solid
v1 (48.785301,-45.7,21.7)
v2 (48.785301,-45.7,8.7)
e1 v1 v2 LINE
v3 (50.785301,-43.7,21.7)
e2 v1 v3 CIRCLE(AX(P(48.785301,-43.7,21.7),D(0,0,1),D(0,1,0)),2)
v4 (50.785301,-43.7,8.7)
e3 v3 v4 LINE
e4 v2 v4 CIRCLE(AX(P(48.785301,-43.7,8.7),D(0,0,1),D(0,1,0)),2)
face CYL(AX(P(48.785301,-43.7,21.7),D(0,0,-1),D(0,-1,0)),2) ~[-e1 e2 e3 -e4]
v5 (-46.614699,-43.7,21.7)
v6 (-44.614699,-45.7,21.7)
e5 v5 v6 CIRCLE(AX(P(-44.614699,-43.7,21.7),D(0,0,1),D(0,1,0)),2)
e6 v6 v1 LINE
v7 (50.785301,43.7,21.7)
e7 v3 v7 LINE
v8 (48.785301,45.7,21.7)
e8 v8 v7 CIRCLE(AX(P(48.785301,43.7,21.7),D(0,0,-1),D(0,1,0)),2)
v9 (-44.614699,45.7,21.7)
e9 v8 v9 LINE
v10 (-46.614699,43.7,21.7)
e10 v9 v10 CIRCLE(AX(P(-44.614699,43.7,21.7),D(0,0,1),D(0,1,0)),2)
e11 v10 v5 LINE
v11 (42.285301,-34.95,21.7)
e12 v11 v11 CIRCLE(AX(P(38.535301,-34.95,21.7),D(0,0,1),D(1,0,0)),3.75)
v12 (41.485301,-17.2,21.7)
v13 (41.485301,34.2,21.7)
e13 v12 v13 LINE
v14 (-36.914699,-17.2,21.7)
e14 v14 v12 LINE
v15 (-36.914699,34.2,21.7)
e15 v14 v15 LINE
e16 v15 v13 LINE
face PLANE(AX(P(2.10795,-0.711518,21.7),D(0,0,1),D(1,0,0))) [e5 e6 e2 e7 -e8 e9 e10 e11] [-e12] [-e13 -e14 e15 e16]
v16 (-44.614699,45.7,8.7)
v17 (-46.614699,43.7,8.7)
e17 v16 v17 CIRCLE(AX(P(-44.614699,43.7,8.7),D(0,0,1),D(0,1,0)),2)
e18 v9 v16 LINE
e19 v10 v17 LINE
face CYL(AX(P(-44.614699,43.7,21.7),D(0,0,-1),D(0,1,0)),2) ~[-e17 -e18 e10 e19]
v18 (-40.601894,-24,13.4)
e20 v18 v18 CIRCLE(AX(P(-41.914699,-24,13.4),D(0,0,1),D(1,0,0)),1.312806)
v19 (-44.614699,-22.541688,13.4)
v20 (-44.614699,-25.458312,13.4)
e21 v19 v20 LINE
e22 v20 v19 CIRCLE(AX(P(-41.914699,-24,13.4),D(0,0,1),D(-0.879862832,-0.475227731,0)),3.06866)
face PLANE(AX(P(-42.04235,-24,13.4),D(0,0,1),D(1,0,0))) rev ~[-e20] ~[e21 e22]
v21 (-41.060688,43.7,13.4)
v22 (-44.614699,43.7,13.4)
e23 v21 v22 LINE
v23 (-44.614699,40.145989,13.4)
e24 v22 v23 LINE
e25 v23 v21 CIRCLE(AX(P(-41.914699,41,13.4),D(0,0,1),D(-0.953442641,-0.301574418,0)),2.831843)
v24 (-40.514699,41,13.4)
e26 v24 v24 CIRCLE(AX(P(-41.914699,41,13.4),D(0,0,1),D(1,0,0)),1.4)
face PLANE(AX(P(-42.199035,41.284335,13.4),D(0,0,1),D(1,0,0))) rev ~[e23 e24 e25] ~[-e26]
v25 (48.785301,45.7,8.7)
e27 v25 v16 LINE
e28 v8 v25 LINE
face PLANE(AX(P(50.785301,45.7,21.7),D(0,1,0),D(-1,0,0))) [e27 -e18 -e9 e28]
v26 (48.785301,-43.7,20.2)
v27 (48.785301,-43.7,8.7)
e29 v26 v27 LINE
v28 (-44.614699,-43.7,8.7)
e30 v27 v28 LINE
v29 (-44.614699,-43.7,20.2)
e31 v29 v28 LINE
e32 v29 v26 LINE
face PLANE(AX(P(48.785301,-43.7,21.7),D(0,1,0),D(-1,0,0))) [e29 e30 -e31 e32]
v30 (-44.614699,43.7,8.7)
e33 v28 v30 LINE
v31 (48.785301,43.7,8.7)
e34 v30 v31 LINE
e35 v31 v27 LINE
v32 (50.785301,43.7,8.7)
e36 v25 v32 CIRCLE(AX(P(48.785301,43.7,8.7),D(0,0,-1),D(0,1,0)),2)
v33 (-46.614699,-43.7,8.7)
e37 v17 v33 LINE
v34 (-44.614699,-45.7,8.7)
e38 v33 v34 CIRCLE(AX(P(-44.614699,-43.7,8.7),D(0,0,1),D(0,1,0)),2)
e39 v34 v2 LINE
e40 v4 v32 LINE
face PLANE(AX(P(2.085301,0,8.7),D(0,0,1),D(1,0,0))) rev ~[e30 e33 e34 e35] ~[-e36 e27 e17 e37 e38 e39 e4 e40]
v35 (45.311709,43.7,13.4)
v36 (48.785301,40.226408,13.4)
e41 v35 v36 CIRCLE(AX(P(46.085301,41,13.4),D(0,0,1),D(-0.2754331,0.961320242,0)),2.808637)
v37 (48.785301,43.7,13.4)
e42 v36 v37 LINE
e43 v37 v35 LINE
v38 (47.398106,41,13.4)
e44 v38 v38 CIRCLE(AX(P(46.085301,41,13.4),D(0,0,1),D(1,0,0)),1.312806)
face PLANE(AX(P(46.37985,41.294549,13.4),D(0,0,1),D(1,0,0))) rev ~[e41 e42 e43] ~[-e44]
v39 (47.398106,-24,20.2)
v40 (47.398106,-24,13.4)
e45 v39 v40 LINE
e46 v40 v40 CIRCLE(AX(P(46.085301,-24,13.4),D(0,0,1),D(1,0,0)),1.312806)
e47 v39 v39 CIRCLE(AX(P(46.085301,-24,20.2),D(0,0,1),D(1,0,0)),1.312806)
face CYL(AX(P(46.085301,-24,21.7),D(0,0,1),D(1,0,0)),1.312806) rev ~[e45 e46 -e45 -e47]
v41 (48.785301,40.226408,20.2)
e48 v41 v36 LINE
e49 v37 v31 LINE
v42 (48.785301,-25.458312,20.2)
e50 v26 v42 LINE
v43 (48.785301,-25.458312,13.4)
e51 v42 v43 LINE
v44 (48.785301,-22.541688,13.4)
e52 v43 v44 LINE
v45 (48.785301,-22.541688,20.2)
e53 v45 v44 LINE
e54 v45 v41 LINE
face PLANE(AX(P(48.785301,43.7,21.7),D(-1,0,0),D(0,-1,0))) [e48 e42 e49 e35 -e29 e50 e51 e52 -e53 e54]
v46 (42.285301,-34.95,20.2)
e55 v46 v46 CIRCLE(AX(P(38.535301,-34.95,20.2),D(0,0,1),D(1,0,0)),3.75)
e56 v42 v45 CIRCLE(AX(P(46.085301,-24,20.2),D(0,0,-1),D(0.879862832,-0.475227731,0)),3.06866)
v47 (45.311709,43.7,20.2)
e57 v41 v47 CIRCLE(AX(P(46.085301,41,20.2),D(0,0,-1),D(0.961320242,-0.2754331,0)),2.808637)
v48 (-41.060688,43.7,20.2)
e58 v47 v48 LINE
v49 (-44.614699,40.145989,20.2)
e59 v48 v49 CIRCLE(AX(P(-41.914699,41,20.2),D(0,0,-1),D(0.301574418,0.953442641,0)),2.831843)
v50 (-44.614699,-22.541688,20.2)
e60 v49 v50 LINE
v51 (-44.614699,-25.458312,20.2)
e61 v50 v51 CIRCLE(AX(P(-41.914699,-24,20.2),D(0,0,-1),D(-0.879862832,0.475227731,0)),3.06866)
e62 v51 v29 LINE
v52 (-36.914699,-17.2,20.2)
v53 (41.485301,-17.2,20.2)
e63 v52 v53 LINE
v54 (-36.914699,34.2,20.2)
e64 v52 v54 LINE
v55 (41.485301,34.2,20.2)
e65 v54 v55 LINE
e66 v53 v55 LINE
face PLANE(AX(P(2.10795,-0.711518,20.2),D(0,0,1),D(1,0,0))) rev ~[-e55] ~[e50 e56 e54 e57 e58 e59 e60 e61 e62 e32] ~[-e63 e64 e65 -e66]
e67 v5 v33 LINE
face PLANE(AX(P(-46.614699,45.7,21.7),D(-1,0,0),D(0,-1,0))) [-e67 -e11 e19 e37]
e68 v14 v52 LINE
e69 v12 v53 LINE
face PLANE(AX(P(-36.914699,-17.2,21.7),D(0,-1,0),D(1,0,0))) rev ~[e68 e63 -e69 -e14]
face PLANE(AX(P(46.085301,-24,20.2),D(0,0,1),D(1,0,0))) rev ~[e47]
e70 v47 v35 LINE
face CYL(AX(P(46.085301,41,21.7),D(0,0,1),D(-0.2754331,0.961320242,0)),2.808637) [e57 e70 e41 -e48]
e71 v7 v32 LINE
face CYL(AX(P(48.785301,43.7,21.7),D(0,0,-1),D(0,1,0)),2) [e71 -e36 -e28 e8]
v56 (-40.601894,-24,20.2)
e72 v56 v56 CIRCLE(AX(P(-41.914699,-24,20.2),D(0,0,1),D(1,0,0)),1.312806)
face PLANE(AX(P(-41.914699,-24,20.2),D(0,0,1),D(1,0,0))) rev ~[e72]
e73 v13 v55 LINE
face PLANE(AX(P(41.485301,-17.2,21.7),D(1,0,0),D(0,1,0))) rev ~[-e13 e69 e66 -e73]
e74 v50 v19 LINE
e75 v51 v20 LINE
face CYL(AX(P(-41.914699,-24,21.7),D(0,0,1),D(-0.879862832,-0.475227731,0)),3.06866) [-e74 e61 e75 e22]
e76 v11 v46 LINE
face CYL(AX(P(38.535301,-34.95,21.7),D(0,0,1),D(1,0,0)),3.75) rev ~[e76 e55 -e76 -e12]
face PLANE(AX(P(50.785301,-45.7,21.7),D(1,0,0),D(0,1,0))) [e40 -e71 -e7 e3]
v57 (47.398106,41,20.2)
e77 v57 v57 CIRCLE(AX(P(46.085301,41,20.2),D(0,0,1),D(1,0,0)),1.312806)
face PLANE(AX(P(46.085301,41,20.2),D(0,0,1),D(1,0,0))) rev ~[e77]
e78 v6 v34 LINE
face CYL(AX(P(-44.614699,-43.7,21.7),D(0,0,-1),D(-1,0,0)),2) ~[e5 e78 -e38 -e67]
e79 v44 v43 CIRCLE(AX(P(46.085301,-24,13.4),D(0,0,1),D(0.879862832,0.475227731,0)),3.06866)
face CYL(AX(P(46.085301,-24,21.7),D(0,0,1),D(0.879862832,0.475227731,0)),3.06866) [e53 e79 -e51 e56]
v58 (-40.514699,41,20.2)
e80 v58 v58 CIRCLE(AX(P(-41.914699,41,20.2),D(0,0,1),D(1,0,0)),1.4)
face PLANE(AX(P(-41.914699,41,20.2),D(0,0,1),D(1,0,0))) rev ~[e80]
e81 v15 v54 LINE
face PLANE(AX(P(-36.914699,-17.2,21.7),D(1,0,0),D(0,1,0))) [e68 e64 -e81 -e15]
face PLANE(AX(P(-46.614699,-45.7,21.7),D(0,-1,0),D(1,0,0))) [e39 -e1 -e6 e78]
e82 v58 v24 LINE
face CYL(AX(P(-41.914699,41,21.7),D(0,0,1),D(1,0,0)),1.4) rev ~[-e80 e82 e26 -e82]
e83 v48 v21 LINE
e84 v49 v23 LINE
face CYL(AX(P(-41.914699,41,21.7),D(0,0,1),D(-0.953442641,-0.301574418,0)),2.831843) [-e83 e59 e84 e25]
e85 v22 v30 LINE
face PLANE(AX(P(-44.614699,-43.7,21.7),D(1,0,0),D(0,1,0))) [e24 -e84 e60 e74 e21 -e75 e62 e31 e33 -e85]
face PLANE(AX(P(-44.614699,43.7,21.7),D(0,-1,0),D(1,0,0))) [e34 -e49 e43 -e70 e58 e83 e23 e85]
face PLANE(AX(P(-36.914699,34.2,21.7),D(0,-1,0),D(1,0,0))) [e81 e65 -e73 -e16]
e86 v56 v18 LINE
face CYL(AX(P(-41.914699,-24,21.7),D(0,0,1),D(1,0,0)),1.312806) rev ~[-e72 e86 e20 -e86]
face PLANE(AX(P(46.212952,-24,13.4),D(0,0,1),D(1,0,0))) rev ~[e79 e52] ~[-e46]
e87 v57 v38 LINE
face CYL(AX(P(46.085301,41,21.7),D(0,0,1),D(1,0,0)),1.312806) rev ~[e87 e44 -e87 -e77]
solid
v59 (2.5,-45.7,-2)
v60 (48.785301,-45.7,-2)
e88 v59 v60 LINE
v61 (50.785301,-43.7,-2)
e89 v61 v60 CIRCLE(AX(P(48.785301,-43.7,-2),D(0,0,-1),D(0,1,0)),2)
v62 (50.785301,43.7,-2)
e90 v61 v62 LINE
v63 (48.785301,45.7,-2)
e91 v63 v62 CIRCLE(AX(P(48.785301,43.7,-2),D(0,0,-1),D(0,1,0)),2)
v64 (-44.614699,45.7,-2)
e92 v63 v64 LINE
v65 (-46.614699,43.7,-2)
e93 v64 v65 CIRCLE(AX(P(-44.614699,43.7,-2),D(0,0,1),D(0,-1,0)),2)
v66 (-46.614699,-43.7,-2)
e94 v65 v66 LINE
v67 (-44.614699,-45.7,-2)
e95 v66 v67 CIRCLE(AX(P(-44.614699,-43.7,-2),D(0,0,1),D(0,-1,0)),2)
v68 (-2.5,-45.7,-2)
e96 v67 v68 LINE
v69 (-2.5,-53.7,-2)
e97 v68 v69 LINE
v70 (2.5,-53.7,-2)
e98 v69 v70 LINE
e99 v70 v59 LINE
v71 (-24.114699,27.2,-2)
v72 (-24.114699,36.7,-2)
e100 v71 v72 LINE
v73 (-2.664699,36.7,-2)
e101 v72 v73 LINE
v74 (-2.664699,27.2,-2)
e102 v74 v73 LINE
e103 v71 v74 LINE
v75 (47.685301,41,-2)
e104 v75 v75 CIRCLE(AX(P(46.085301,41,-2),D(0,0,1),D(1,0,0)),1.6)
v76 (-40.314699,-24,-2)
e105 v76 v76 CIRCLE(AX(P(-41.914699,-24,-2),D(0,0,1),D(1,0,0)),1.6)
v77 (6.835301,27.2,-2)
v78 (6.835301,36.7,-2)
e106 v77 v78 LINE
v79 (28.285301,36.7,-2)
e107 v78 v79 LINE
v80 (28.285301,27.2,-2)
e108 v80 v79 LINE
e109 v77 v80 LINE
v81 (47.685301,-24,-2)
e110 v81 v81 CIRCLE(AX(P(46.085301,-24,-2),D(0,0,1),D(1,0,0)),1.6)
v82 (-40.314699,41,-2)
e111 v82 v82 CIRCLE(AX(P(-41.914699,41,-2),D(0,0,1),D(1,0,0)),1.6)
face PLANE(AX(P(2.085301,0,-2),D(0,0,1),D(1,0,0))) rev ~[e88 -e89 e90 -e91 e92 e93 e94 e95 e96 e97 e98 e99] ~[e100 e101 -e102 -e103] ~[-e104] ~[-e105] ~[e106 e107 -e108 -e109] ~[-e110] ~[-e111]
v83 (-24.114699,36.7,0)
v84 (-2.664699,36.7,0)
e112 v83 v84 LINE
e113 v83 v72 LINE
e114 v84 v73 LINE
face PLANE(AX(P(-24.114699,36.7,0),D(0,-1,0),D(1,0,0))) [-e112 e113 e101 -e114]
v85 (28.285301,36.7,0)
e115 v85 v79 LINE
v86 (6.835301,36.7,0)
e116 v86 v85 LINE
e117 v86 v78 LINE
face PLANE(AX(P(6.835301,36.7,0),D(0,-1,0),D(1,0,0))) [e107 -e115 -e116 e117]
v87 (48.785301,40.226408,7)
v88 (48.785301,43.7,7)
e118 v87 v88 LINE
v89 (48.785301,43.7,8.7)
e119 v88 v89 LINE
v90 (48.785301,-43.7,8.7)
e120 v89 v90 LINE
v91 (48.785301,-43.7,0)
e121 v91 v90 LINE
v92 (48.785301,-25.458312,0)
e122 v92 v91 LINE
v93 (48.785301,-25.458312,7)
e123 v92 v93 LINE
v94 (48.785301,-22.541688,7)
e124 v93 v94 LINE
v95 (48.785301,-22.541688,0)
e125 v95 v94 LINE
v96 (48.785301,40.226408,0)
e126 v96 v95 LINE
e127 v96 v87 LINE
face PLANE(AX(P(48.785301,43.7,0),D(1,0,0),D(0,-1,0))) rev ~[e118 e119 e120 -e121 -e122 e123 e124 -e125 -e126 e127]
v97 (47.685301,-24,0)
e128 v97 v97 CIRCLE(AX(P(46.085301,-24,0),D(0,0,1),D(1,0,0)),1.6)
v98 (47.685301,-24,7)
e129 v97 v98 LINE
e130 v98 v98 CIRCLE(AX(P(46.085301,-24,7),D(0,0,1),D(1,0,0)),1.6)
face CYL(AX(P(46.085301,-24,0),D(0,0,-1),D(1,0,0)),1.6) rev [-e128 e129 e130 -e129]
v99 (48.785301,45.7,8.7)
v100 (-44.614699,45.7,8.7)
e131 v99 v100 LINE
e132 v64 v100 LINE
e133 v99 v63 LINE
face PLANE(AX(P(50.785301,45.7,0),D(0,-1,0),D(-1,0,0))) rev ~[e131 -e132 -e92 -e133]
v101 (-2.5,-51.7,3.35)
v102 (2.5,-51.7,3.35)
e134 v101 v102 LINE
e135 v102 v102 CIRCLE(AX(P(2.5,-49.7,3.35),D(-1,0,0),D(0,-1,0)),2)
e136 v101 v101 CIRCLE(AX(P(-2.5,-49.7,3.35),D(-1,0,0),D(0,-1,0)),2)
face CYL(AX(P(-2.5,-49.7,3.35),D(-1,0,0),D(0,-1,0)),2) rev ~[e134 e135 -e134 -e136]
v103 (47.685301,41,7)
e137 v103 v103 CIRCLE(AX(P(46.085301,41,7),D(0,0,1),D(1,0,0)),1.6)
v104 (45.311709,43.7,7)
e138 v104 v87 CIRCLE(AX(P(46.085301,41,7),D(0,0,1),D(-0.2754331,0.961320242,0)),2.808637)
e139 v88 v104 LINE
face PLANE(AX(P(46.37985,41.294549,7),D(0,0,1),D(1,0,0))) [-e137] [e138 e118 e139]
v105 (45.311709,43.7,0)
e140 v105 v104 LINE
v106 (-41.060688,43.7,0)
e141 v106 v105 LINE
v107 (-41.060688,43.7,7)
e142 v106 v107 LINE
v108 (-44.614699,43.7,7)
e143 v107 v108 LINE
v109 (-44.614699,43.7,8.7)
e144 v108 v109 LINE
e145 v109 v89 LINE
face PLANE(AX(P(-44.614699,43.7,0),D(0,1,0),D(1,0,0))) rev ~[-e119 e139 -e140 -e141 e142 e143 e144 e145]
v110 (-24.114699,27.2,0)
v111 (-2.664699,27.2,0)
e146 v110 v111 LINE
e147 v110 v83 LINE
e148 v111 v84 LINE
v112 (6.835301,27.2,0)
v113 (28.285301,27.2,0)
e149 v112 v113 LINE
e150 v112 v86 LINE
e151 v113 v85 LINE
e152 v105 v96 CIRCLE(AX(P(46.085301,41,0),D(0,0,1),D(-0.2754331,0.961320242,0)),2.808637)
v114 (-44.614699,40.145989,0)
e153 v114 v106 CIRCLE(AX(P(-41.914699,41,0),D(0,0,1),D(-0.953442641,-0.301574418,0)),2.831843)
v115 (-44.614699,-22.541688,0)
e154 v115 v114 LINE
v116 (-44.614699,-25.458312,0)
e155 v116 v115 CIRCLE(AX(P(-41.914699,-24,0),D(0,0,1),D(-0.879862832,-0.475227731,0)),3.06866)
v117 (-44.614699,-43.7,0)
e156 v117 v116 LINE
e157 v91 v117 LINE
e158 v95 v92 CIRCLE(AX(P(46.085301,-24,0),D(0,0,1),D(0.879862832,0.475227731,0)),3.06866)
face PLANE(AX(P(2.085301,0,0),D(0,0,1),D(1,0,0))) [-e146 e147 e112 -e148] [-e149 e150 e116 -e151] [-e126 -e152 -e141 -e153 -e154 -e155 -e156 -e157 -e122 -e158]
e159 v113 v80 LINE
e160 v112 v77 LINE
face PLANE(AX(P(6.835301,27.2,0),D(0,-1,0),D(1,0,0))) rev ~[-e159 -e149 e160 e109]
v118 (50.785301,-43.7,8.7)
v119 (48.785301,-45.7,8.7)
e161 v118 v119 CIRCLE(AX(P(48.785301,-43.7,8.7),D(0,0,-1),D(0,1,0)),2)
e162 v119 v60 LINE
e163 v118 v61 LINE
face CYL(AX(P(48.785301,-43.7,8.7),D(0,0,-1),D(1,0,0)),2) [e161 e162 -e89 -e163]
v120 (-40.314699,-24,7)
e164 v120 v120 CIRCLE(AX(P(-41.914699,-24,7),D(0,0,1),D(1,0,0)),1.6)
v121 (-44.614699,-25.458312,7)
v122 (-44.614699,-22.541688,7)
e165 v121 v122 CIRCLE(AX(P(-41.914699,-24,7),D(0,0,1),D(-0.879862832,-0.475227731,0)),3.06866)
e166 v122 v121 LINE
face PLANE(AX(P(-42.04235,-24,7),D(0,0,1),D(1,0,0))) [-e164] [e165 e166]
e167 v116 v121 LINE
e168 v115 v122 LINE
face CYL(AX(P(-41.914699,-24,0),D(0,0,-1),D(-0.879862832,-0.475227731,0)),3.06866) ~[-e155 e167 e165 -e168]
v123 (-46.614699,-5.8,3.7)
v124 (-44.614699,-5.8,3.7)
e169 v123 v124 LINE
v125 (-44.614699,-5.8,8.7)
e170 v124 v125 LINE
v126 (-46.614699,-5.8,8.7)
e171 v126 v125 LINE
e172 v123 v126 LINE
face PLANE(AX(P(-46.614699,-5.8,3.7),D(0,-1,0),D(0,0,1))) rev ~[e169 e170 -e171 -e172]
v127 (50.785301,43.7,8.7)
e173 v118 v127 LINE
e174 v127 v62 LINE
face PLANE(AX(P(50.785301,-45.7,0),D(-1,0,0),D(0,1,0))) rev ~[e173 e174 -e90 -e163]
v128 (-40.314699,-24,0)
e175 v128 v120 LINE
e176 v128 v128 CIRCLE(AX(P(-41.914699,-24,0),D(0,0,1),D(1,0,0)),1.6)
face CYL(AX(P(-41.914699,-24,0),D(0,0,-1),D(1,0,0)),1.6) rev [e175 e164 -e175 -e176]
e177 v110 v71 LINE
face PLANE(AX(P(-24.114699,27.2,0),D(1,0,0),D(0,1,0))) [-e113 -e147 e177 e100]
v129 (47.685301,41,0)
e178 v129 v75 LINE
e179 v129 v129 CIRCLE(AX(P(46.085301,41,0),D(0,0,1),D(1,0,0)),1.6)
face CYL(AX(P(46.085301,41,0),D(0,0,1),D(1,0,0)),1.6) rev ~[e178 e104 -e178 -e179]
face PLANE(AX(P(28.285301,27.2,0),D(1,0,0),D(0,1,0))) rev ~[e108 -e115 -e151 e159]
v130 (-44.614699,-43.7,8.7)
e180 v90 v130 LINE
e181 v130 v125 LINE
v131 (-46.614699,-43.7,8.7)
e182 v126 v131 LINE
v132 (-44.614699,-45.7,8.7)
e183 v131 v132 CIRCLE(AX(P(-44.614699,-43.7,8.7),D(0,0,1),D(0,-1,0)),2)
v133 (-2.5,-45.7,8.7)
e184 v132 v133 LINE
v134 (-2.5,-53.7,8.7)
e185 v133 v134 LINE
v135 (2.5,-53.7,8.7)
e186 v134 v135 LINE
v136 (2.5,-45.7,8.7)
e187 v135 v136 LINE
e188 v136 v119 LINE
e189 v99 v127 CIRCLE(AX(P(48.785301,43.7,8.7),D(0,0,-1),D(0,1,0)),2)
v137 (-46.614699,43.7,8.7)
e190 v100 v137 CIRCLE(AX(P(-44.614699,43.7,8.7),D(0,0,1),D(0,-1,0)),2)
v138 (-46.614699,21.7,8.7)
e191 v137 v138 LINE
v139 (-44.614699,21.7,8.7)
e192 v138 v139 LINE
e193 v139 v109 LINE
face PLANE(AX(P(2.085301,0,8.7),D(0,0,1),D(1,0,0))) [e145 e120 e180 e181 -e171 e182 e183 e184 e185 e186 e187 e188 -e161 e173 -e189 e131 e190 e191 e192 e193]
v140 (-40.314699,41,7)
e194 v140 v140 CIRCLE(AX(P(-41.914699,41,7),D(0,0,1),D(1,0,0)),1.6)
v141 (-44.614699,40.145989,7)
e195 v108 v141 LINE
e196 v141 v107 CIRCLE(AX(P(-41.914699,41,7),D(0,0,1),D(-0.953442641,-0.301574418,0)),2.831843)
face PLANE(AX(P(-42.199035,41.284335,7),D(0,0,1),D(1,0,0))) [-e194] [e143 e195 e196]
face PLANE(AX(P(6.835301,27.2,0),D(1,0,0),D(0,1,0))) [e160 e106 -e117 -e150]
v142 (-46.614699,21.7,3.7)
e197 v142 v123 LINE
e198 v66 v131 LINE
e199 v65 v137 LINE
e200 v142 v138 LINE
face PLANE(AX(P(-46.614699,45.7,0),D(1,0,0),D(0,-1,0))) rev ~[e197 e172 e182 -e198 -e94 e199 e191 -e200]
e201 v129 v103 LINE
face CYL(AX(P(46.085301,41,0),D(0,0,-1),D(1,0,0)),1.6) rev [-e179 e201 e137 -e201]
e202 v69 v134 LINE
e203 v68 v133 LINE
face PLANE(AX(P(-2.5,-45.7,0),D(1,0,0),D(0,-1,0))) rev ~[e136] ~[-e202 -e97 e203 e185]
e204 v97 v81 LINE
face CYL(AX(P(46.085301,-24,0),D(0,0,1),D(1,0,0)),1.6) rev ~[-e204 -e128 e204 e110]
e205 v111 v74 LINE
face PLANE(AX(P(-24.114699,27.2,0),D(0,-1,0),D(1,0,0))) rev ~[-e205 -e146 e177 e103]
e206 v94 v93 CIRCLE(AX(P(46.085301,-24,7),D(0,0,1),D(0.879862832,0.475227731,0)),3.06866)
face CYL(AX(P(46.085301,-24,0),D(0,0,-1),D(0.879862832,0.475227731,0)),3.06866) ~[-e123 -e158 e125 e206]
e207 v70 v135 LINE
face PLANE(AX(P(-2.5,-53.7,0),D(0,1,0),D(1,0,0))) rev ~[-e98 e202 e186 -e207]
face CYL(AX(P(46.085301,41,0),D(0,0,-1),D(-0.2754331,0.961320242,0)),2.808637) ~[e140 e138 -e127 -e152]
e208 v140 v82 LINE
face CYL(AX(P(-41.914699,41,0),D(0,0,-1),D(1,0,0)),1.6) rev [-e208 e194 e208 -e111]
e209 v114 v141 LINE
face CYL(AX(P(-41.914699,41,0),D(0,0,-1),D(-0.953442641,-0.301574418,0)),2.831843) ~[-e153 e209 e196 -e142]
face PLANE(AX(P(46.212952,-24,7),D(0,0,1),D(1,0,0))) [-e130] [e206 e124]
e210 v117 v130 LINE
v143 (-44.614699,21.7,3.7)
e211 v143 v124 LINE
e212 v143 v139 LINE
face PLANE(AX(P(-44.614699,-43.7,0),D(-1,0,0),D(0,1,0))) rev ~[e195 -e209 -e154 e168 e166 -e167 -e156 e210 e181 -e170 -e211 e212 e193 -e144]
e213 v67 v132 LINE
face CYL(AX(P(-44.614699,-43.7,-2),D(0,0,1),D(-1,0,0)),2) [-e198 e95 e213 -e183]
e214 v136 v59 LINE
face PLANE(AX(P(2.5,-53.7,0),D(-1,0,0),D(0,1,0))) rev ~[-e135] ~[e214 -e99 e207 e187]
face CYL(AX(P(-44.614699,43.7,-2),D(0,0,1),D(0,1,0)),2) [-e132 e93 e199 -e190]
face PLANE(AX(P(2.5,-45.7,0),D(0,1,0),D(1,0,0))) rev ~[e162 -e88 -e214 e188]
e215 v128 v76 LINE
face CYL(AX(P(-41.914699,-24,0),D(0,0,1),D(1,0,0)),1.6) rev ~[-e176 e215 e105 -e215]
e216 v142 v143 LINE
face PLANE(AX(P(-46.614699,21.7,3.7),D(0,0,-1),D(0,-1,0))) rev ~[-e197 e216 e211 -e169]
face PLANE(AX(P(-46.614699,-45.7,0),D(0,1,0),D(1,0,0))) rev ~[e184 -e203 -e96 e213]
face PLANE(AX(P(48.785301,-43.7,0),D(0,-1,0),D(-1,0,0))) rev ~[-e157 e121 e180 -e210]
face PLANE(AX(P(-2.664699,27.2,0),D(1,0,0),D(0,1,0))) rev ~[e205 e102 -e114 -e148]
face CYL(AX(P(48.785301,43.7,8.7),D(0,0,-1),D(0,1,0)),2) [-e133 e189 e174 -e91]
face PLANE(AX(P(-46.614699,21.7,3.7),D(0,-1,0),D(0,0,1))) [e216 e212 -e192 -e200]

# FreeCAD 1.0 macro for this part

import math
import FreeCAD as App
import Part
import Sketcher

V = App.Vector


def edges_at(feature, points):
    """Names of the edges that pass closest to the given points."""
    edges = feature.Shape.Edges
    near = lambda p: min(range(len(edges)), key=lambda i: edges[i].distToShape(Part.Vertex(*p))[0])
    return sorted({f"Edge{near(p) + 1}" for p in points})


def add_polygon(sketch, points):
    """Adds a closed chain of lines whose ends are joined by coincident constraints."""
    first, n = sketch.GeometryCount, len(points)
    for a, b in zip(points, points[1:] + points[:1]):
        sketch.addGeometry(Part.LineSegment(App.Vector(*a, 0), App.Vector(*b, 0)), False)
    for i in range(n):
        sketch.addConstraint(Sketcher.Constraint("Coincident", first + i, 2, first + (i + 1) % n, 1))

doc = App.newDocument("Part")
params = doc.addObject("Spreadsheet::Sheet", "Params")
for row, (alias, value) in enumerate([
    ("sketch1_diameter", "3.2 mm"),
    ("sketch1_width", "5 mm"),
    ("sketch1_height", "8 mm"),
    ("sketch1_width2", "97.4 mm"),
    ("sketch1_height2", "91.4 mm"),
    ("pad1_length", "2 mm"),
    ("sketch2_diameter", "3.2 mm"),
    ("pad2_length", "7 mm"),
    ("sketch3_width", "5 mm"),
    ("sketch3_height", "8 mm"),
    ("sketch3_width2", "97.4 mm"),
    ("sketch3_width3", "93.4 mm"),
    ("sketch3_height2", "91.4 mm"),
    ("pad3_length", "8.7 mm"),
    ("sketch4_height", "5 mm"),
    ("sketch4_width", "27.5 mm"),
    ("pocket1_length", "2 mm"),
    ("sketch5_diameter", "4 mm"),
    ("fillet_radius", "2 mm"),
    ("sketch6_width", "97.4 mm"),
    ("sketch6_width2", "93.4 mm"),
    ("sketch6_height", "91.4 mm"),
    ("sketch6_height2", "87.4 mm"),
    ("pad4_length", "13 mm"),
    ("sketch7_diameter", "2.8 mm"),
    ("pad5_length", "8.3 mm"),
    ("sketch8_diameter", "7.5 mm"),
    ("sketch8_diameter2", "2.8 mm"),
    ("sketch8_width", "93.4 mm"),
    ("sketch8_width2", "78.4 mm"),
    ("sketch8_height", "51.4 mm"),
    ("pad6_length", "1.5 mm"),
    ("fillet2_radius", "2 mm"),
], start=1):
    params.set(f"A{row}", alias)
    params.set(f"B{row}", "=" + value)
    params.setAlias(f"B{row}", alias)

body = doc.addObject("PartDesign::Body", "Body")

# Sketch on XY plane
sketch1 = body.newObject("Sketcher::SketchObject", "Sketch")
sketch1.AttachmentSupport = (doc.getObject("XY_Plane"), [""])
sketch1.MapMode = "FlatFace"
add_polygon(sketch1, [(50.785301, 45.7), (-46.614699, 45.7), (-46.614699, -45.7), (-2.5, -45.7), (-2.5, -53.7), (2.5, -53.7), (2.5, -45.7), (50.785301, -45.7)])  # lines 0-7
sketch1.addGeometry(Part.Circle(V(-41.914699, -24, 0), V(0, 0, 1), 1.6), False)  # 8
sketch1.addGeometry(Part.Circle(V(46.085301, -24, 0), V(0, 0, 1), 1.6), False)  # 9
sketch1.addGeometry(Part.Circle(V(-41.914699, 41, 0), V(0, 0, 1), 1.6), False)  # 10
add_polygon(sketch1, [(-2.664699, 27.2), (-24.114699, 27.2), (-24.114699, 36.7), (-2.664699, 36.7)])  # lines 11-14
add_polygon(sketch1, [(28.285301, 27.2), (6.835301, 27.2), (6.835301, 36.7), (28.285301, 36.7)])  # lines 15-18
sketch1.addGeometry(Part.Circle(V(46.085301, 41, 0), V(0, 0, 1), 1.6), False)  # 19
sketch1.addConstraint([
    Sketcher.Constraint("Horizontal", 0),
    Sketcher.Constraint("Vertical", 1),
    Sketcher.Constraint("Horizontal", 2),
    Sketcher.Constraint("Vertical", 3),
    Sketcher.Constraint("Horizontal", 4),
    Sketcher.Constraint("Vertical", 5),
    Sketcher.Constraint("Horizontal", 6),
    Sketcher.Constraint("Vertical", 7),
    Sketcher.Constraint("Horizontal", 11),
    Sketcher.Constraint("Vertical", 12),
    Sketcher.Constraint("Horizontal", 13),
    Sketcher.Constraint("Vertical", 14),
    Sketcher.Constraint("Horizontal", 15),
    Sketcher.Constraint("Vertical", 16),
    Sketcher.Constraint("Horizontal", 17),
    Sketcher.Constraint("Vertical", 18),
    Sketcher.Constraint("Equal", 8, 9),
    Sketcher.Constraint("Equal", 9, 10),
    Sketcher.Constraint("Equal", 10, 19),
    Sketcher.Constraint("Symmetric", 2, 2, 5, 2, -2),
    Sketcher.Constraint("Horizontal", 8, 3, 9, 3),
    Sketcher.Constraint("Horizontal", 10, 3, 19, 3),
    Sketcher.Constraint("Horizontal", 14, 2, 15, 2),
    Sketcher.Constraint("Horizontal", 13, 2, 16, 2),
    Sketcher.Constraint("Vertical", 8, 3, 10, 3),
    Sketcher.Constraint("Vertical", 9, 3, 19, 3),
    Sketcher.Constraint("Equal", 13, 15),
    Sketcher.Constraint("Diameter", 8, 3.2),
    Sketcher.Constraint("DistanceX", 4, 1, 4, 2, 5.0),
    Sketcher.Constraint("DistanceY", 3, 2, 3, 1, 8.0),
    Sketcher.Constraint("DistanceX", 0, 2, 0, 1, 97.4),
    Sketcher.Constraint("DistanceY", 1, 2, 1, 1, 91.4),
    Sketcher.Constraint("DistanceY", 12, 1, 12, 2, 9.5),
    Sketcher.Constraint("DistanceY", 8, 3, -1, 1, 24.0),
    Sketcher.Constraint("DistanceY", -1, 1, 10, 3, 41.0),
    Sketcher.Constraint("DistanceX", 8, 3, 9, 3, 88.0),
    Sketcher.Constraint("DistanceY", 12, 2, 0, 2, 9.0),
    Sketcher.Constraint("DistanceX", 11, 2, 11, 1, 21.45),
    Sketcher.Constraint("DistanceY", -1, 1, 0, 2, 45.7),
    Sketcher.Constraint("DistanceX", 0, 2, 10, 3, 4.7),
    Sketcher.Constraint("DistanceX", 10, 3, 11, 2, 17.8),
    Sketcher.Constraint("DistanceX", 14, 2, 15, 2, 9.5),
    Sketcher.Constraint("DistanceX", 2, 1, 2, 2, 44.114699),
])
sketch1.setExpression("Constraints[43]", "Params.sketch1_diameter")
sketch1.setExpression("Constraints[44]", "Params.sketch1_width")
sketch1.setExpression("Constraints[45]", "Params.sketch1_height")
sketch1.setExpression("Constraints[46]", "Params.sketch1_width2")
sketch1.setExpression("Constraints[47]", "Params.sketch1_height2")
pad1 = body.newObject("PartDesign::Pad", "Pad")
pad1.Profile = sketch1
pad1.setExpression("Length", "Params.pad1_length")
pad1.Reversed = True

# Sketch on XY plane
sketch2 = body.newObject("Sketcher::SketchObject", "Sketch001")
sketch2.AttachmentSupport = (doc.getObject("XY_Plane"), [""])
sketch2.MapMode = "FlatFace"
sketch2.addGeometry([
    Part.LineSegment(V(-41.060688, 43.7, 0), V(-44.614699, 43.7, 0)),  # 0
    Part.LineSegment(V(-44.614699, 43.7, 0), V(-44.614699, 40.145989, 0)),  # 1
    Part.ArcOfCircle(Part.Circle(V(-41.914699, 41, 0), V(0, 0, 1), 2.831843), math.radians(-162.447809), math.radians(72.447809)),  # 2
    Part.Circle(V(-41.914699, 41, 0), V(0, 0, 1), 1.6),  # 3
    Part.LineSegment(V(48.785301, 43.7, 0), V(45.311709, 43.7, 0)),  # 4
    Part.ArcOfCircle(Part.Circle(V(46.085301, 41, 0), V(0, 0, 1), 2.808637), math.radians(105.987826), math.radians(344.012174)),  # 5
    Part.LineSegment(V(48.785301, 40.226408, 0), V(48.785301, 43.7, 0)),  # 6
    Part.Circle(V(46.085301, 41, 0), V(0, 0, 1), 1.6),  # 7
    Part.LineSegment(V(48.785301, -25.458312, 0), V(48.785301, -22.541688, 0)),  # 8
    Part.ArcOfCircle(Part.Circle(V(46.085301, -24, 0), V(0, 0, 1), 3.06866), math.radians(28.374179), math.radians(331.625821)),  # 9
    Part.Circle(V(46.085301, -24, 0), V(0, 0, 1), 1.6),  # 10
    Part.ArcOfCircle(Part.Circle(V(-41.914699, -24, 0), V(0, 0, 1), 3.06866), math.radians(-151.625821), math.radians(151.625821)),  # 11
    Part.LineSegment(V(-44.614699, -22.541688, 0), V(-44.614699, -25.458312, 0)),  # 12
    Part.Circle(V(-41.914699, -24, 0), V(0, 0, 1), 1.6),  # 13
], False)
sketch2.addConstraint([
    Sketcher.Constraint("Coincident", 0, 2, 1, 1),
    Sketcher.Constraint("Coincident", 1, 2, 2, 1),
    Sketcher.Constraint("Coincident", 2, 2, 0, 1),
    Sketcher.Constraint("Coincident", 4, 2, 5, 1),
    Sketcher.Constraint("Coincident", 5, 2, 6, 1),
    Sketcher.Constraint("Coincident", 6, 2, 4, 1),
    Sketcher.Constraint("Coincident", 8, 1, 9, 2),
    Sketcher.Constraint("Coincident", 9, 1, 8, 2),
    Sketcher.Constraint("Coincident", 11, 1, 12, 2),
    Sketcher.Constraint("Coincident", 12, 1, 11, 2),
    Sketcher.Constraint("Horizontal", 0),
    Sketcher.Constraint("Vertical", 1),
    Sketcher.Constraint("Horizontal", 4),
    Sketcher.Constraint("Vertical", 6),
    Sketcher.Constraint("Vertical", 8),
    Sketcher.Constraint("Vertical", 12),
    Sketcher.Constraint("Coincident", 3, 3, 2, 3),
    Sketcher.Constraint("Coincident", 7, 3, 5, 3),
    Sketcher.Constraint("Coincident", 10, 3, 9, 3),
    Sketcher.Constraint("Coincident", 13, 3, 11, 3),
    Sketcher.Constraint("Equal", 3, 7),
    Sketcher.Constraint("Equal", 7, 10),
    Sketcher.Constraint("Equal", 9, 11),
    Sketcher.Constraint("Equal", 10, 13),
    Sketcher.Constraint("Horizontal", 3, 3, 5, 3),
    Sketcher.Constraint("Horizontal", 10, 3, 11, 3),
    Sketcher.Constraint("Horizontal", 2, 2, 4, 2),
    Sketcher.Constraint("Horizontal", 8, 1, 11, 1),
    Sketcher.Constraint("Vertical", 7, 3, 9, 3),
    Sketcher.Constraint("Vertical", 3, 3, 11, 3),
    Sketcher.Constraint("Vertical", 6, 2, 8, 1),
    Sketcher.Constraint("Vertical", 1, 2, 11, 1),
    Sketcher.Constraint("Equal", 0, 1),
    Sketcher.Constraint("Diameter", 3, 3.2),
    Sketcher.Constraint("DistanceY", -1, 1, 2, 3, 41.0),
    Sketcher.Constraint("DistanceY", 9, 3, -1, 1, 24.0),
    Sketcher.Constraint("DistanceX", 2, 3, 5, 3, 88.0),
    Sketcher.Constraint("DistanceY", -1, 1, 0, 2, 43.7),
    Sketcher.Constraint("Radius", 9, 3.06866),
    Sketcher.Constraint("Radius", 2, 2.831843),
    Sketcher.Constraint("Radius", 5, 2.808637),
    Sketcher.Constraint("DistanceX", 2, 3, -1, 1, 41.914699),
])
sketch2.setExpression("Constraints[33]", "Params.sketch2_diameter")
pad2 = body.newObject("PartDesign::Pad", "Pad001")
pad2.Profile = sketch2
pad2.setExpression("Length", "Params.pad2_length")

# Sketch on XY plane
sketch3 = body.newObject("Sketcher::SketchObject", "Sketch002")
sketch3.AttachmentSupport = (doc.getObject("XY_Plane"), [""])
sketch3.MapMode = "FlatFace"
add_polygon(sketch3, [(50.785301, 45.7), (-46.614699, 45.7), (-46.614699, -45.7), (-2.5, -45.7), (-2.5, -53.7), (2.5, -53.7), (2.5, -45.7), (50.785301, -45.7)])  # lines 0-7
add_polygon(sketch3, [(-44.614699, -43.7), (-44.614699, 43.7), (48.785301, 43.7), (48.785301, -43.7)])  # lines 8-11
sketch3.addConstraint([
    Sketcher.Constraint("Horizontal", 0),
    Sketcher.Constraint("Vertical", 1),
    Sketcher.Constraint("Horizontal", 2),
    Sketcher.Constraint("Vertical", 3),
    Sketcher.Constraint("Horizontal", 4),
    Sketcher.Constraint("Vertical", 5),
    Sketcher.Constraint("Horizontal", 6),
    Sketcher.Constraint("Vertical", 7),
    Sketcher.Constraint("Vertical", 8),
    Sketcher.Constraint("Horizontal", 9),
    Sketcher.Constraint("Vertical", 10),
    Sketcher.Constraint("Horizontal", 11),
    Sketcher.Constraint("Symmetric", 2, 2, 5, 2, -2),
    Sketcher.Constraint("DistanceX", 4, 1, 4, 2, 5.0),
    Sketcher.Constraint("DistanceY", 3, 2, 3, 1, 8.0),
    Sketcher.Constraint("DistanceX", 0, 2, 0, 1, 97.4),
    Sketcher.Constraint("DistanceX", 9, 1, 9, 2, 93.4),
    Sketcher.Constraint("DistanceY", 1, 2, 1, 1, 91.4),
    Sketcher.Constraint("DistanceY", 8, 1, 8, 2, 87.4),
    Sketcher.Constraint("DistanceX", 0, 2, 8, 2, 2.0),
    Sketcher.Constraint("DistanceY", 8, 2, 0, 2, 2.0),
    Sketcher.Constraint("DistanceY", -1, 1, 0, 2, 45.7),
    Sketcher.Constraint("DistanceX", 2, 1, 2, 2, 44.114699),
])
sketch3.setExpression("Constraints[25]", "Params.sketch3_width")
sketch3.setExpression("Constraints[26]", "Params.sketch3_height")
sketch3.setExpression("Constraints[27]", "Params.sketch3_width2")
sketch3.setExpression("Constraints[28]", "Params.sketch3_width3")
sketch3.setExpression("Constraints[29]", "Params.sketch3_height2")
pad3 = body.newObject("PartDesign::Pad", "Pad002")
pad3.Profile = sketch3
pad3.setExpression("Length", "Params.pad3_length")

# Sketch on YZ plane
sketch4 = body.newObject("Sketcher::SketchObject", "Sketch003")
sketch4.AttachmentSupport = (doc.getObject("YZ_Plane"), [""])
sketch4.MapMode = "FlatFace"
sketch4.AttachmentOffset = App.Placement(V(0, 0, -46.614699), App.Rotation())
add_polygon(sketch4, [(21.7, 8.7), (21.7, 3.7), (-5.8, 3.7), (-5.8, 8.7)])  # lines 0-3
sketch4.addConstraint([
    Sketcher.Constraint("Vertical", 0),
    Sketcher.Constraint("Horizontal", 1),
    Sketcher.Constraint("Vertical", 2),
    Sketcher.Constraint("Horizontal", 3),
    Sketcher.Constraint("DistanceY", 0, 2, 0, 1, 5.0),
    Sketcher.Constraint("DistanceX", 1, 2, 1, 1, 27.5),
    Sketcher.Constraint("DistanceX", -1, 1, 0, 2, 21.7),
    Sketcher.Constraint("DistanceY", -1, 1, 0, 2, 3.7),
])
sketch4.setExpression("Constraints[8]", "Params.sketch4_height")
sketch4.setExpression("Constraints[9]", "Params.sketch4_width")
pocket1 = body.newObject("PartDesign::Pocket", "Pocket")
pocket1.Profile = sketch4
pocket1.setExpression("Length", "Params.pocket1_length")
pocket1.Reversed = True

# Sketch on YZ plane
sketch5 = body.newObject("Sketcher::SketchObject", "Sketch004")
sketch5.AttachmentSupport = (doc.getObject("YZ_Plane"), [""])
sketch5.MapMode = "FlatFace"
sketch5.AttachmentOffset = App.Placement(V(0, 0, -2.5), App.Rotation())
sketch5.addGeometry(Part.Circle(V(-49.7, 3.35, 0), V(0, 0, 1), 2), False)
sketch5.addConstraint([
    Sketcher.Constraint("Diameter", 0, 4.0),
    Sketcher.Constraint("DistanceX", 0, 3, -1, 1, 49.7),
    Sketcher.Constraint("DistanceY", -1, 1, 0, 3, 3.35),
])
sketch5.setExpression("Constraints[0]", "Params.sketch5_diameter")
pocket2 = body.newObject("PartDesign::Pocket", "Pocket001")
pocket2.Profile = sketch5
pocket2.Type = "ThroughAll"
pocket2.Reversed = True
doc.recompute()

fillet = body.newObject("PartDesign::Fillet", "Fillet")
fillet.Base = (pocket2, edges_at(pocket2, [
    (-46.615, -45.7, 3.35),
    (50.785, -45.7, 3.35),
    (50.785, 45.7, 3.35),
    (-46.615, 45.7, 3.35),
]))
fillet.setExpression("Radius", "Params.fillet_radius")
body2 = doc.addObject("PartDesign::Body", "Body001")

# Sketch on XY plane
sketch6 = body2.newObject("Sketcher::SketchObject", "Sketch005")
sketch6.AttachmentSupport = (doc.getObject("XY_Plane001"), [""])
sketch6.MapMode = "FlatFace"
sketch6.AttachmentOffset = App.Placement(V(0, 0, 21.7), App.Rotation())
add_polygon(sketch6, [(50.785301, 45.7), (-46.614699, 45.7), (-46.614699, -45.7), (50.785301, -45.7)])  # lines 0-3
add_polygon(sketch6, [(-44.614699, -43.7), (-44.614699, 43.7), (48.785301, 43.7), (48.785301, -43.7)])  # lines 4-7
sketch6.addConstraint([
    Sketcher.Constraint("Horizontal", 0),
    Sketcher.Constraint("Vertical", 1),
    Sketcher.Constraint("Horizontal", 2),
    Sketcher.Constraint("Vertical", 3),
    Sketcher.Constraint("Vertical", 4),
    Sketcher.Constraint("Horizontal", 5),
    Sketcher.Constraint("Vertical", 6),
    Sketcher.Constraint("Horizontal", 7),
    Sketcher.Constraint("DistanceX", 0, 2, 0, 1, 97.4),
    Sketcher.Constraint("DistanceX", 5, 1, 5, 2, 93.4),
    Sketcher.Constraint("DistanceY", 1, 2, 1, 1, 91.4),
    Sketcher.Constraint("DistanceY", 4, 1, 4, 2, 87.4),
    Sketcher.Constraint("DistanceX", 0, 2, 4, 2, 2.0),
    Sketcher.Constraint("DistanceY", 4, 2, 0, 2, 2.0),
    Sketcher.Constraint("DistanceY", -1, 1, 0, 2, 45.7),
    Sketcher.Constraint("DistanceX", 0, 2, -1, 1, 46.614699),
])
sketch6.setExpression("Constraints[16]", "Params.sketch6_width")
sketch6.setExpression("Constraints[17]", "Params.sketch6_width2")
sketch6.setExpression("Constraints[18]", "Params.sketch6_height")
sketch6.setExpression("Constraints[19]", "Params.sketch6_height2")
pad4 = body2.newObject("PartDesign::Pad", "Pad003")
pad4.Profile = sketch6
pad4.setExpression("Length", "Params.pad4_length")
pad4.Reversed = True

# Sketch on XY plane
sketch7 = body2.newObject("Sketcher::SketchObject", "Sketch006")
sketch7.AttachmentSupport = (doc.getObject("XY_Plane001"), [""])
sketch7.MapMode = "FlatFace"
sketch7.AttachmentOffset = App.Placement(V(0, 0, 21.7), App.Rotation())
sketch7.addGeometry([
    Part.LineSegment(V(-41.060688, 43.7, 0), V(-44.614699, 43.7, 0)),  # 0
    Part.LineSegment(V(-44.614699, 43.7, 0), V(-44.614699, 40.145989, 0)),  # 1
    Part.ArcOfCircle(Part.Circle(V(-41.914699, 41, 0), V(0, 0, 1), 2.831843), math.radians(-162.447809), math.radians(72.447809)),  # 2
    Part.Circle(V(-41.914699, 41, 0), V(0, 0, 1), 1.4),  # 3
    Part.LineSegment(V(48.785301, 43.7, 0), V(45.311709, 43.7, 0)),  # 4
    Part.ArcOfCircle(Part.Circle(V(46.085301, 41, 0), V(0, 0, 1), 2.808637), math.radians(105.987826), math.radians(344.012174)),  # 5
    Part.LineSegment(V(48.785301, 40.226408, 0), V(48.785301, 43.7, 0)),  # 6
    Part.Circle(V(46.085301, 41, 0), V(0, 0, 1), 1.312806),  # 7
    Part.LineSegment(V(48.785301, -25.458312, 0), V(48.785301, -22.541688, 0)),  # 8
    Part.ArcOfCircle(Part.Circle(V(46.085301, -24, 0), V(0, 0, 1), 3.06866), math.radians(28.374179), math.radians(331.625821)),  # 9
    Part.Circle(V(46.085301, -24, 0), V(0, 0, 1), 1.312806),  # 10
    Part.ArcOfCircle(Part.Circle(V(-41.914699, -24, 0), V(0, 0, 1), 3.06866), math.radians(-151.625821), math.radians(151.625821)),  # 11
    Part.LineSegment(V(-44.614699, -22.541688, 0), V(-44.614699, -25.458312, 0)),  # 12
    Part.Circle(V(-41.914699, -24, 0), V(0, 0, 1), 1.312806),  # 13
], False)
sketch7.addConstraint([
    Sketcher.Constraint("Coincident", 0, 2, 1, 1),
    Sketcher.Constraint("Coincident", 1, 2, 2, 1),
    Sketcher.Constraint("Coincident", 2, 2, 0, 1),
    Sketcher.Constraint("Coincident", 4, 2, 5, 1),
    Sketcher.Constraint("Coincident", 5, 2, 6, 1),
    Sketcher.Constraint("Coincident", 6, 2, 4, 1),
    Sketcher.Constraint("Coincident", 8, 1, 9, 2),
    Sketcher.Constraint("Coincident", 9, 1, 8, 2),
    Sketcher.Constraint("Coincident", 11, 1, 12, 2),
    Sketcher.Constraint("Coincident", 12, 1, 11, 2),
    Sketcher.Constraint("Horizontal", 0),
    Sketcher.Constraint("Vertical", 1),
    Sketcher.Constraint("Horizontal", 4),
    Sketcher.Constraint("Vertical", 6),
    Sketcher.Constraint("Vertical", 8),
    Sketcher.Constraint("Vertical", 12),
    Sketcher.Constraint("Coincident", 3, 3, 2, 3),
    Sketcher.Constraint("Coincident", 7, 3, 5, 3),
    Sketcher.Constraint("Coincident", 10, 3, 9, 3),
    Sketcher.Constraint("Coincident", 13, 3, 11, 3),
    Sketcher.Constraint("Equal", 7, 10),
    Sketcher.Constraint("Equal", 9, 11),
    Sketcher.Constraint("Equal", 10, 13),
    Sketcher.Constraint("Horizontal", 3, 3, 5, 3),
    Sketcher.Constraint("Horizontal", 10, 3, 11, 3),
    Sketcher.Constraint("Horizontal", 2, 2, 4, 2),
    Sketcher.Constraint("Horizontal", 8, 1, 11, 1),
    Sketcher.Constraint("Vertical", 7, 3, 9, 3),
    Sketcher.Constraint("Vertical", 3, 3, 11, 3),
    Sketcher.Constraint("Vertical", 6, 2, 8, 1),
    Sketcher.Constraint("Vertical", 1, 2, 11, 1),
    Sketcher.Constraint("Equal", 0, 1),
    Sketcher.Constraint("Diameter", 3, 2.8),
    Sketcher.Constraint("DistanceY", -1, 1, 2, 3, 41.0),
    Sketcher.Constraint("DistanceY", 9, 3, -1, 1, 24.0),
    Sketcher.Constraint("DistanceX", 2, 3, 5, 3, 88.0),
    Sketcher.Constraint("DistanceY", -1, 1, 0, 2, 43.7),
    Sketcher.Constraint("Diameter", 7, 2.625611),
    Sketcher.Constraint("Radius", 9, 3.06866),
    Sketcher.Constraint("Radius", 2, 2.831843),
    Sketcher.Constraint("Radius", 5, 2.808637),
    Sketcher.Constraint("DistanceX", 2, 3, -1, 1, 41.914699),
])
sketch7.setExpression("Constraints[32]", "Params.sketch7_diameter")
pad5 = body2.newObject("PartDesign::Pad", "Pad004")
pad5.Profile = sketch7
pad5.setExpression("Length", "Params.pad5_length")
pad5.Reversed = True

# Sketch on XY plane
sketch8 = body2.newObject("Sketcher::SketchObject", "Sketch007")
sketch8.AttachmentSupport = (doc.getObject("XY_Plane001"), [""])
sketch8.MapMode = "FlatFace"
sketch8.AttachmentOffset = App.Placement(V(0, 0, 21.7), App.Rotation())
sketch8.addGeometry(Part.ArcOfCircle(Part.Circle(V(-41.914699, 41, 0), V(0, 0, 1), 2.831843), math.radians(-162.447809), math.radians(72.447809)), False)  # 0
sketch8.addGeometry(Part.LineSegment(V(-44.614699, 40.145989, 0), V(-44.614699, -22.541688, 0)), False)  # 1
sketch8.addGeometry(Part.ArcOfCircle(Part.Circle(V(-41.914699, -24, 0), V(0, 0, 1), 3.06866), math.radians(-151.625821), math.radians(151.625821)), False)  # 2
sketch8.addGeometry(Part.LineSegment(V(-44.614699, -25.458312, 0), V(-44.614699, -43.7, 0)), False)  # 3
sketch8.addGeometry(Part.LineSegment(V(-44.614699, -43.7, 0), V(48.785301, -43.7, 0)), False)  # 4
sketch8.addGeometry(Part.LineSegment(V(48.785301, -43.7, 0), V(48.785301, -25.458312, 0)), False)  # 5
sketch8.addGeometry(Part.ArcOfCircle(Part.Circle(V(46.085301, -24, 0), V(0, 0, 1), 3.06866), math.radians(28.374179), math.radians(331.625821)), False)  # 6
sketch8.addGeometry(Part.LineSegment(V(48.785301, -22.541688, 0), V(48.785301, 40.226408, 0)), False)  # 7
sketch8.addGeometry(Part.ArcOfCircle(Part.Circle(V(46.085301, 41, 0), V(0, 0, 1), 2.808637), math.radians(105.987826), math.radians(344.012174)), False)  # 8
sketch8.addGeometry(Part.LineSegment(V(45.311709, 43.7, 0), V(-41.060688, 43.7, 0)), False)  # 9
sketch8.addGeometry(Part.Circle(V(38.535301, -34.95, 0), V(0, 0, 1), 3.75), False)  # 10
add_polygon(sketch8, [(41.485301, -17.2), (-36.914699, -17.2), (-36.914699, 34.2), (41.485301, 34.2)])  # lines 11-14
sketch8.addGeometry(Part.Circle(V(-41.914699, 41, 0), V(0, 0, 1), 1.4), False)  # 15
sketch8.addGeometry(Part.Circle(V(-41.914699, -24, 0), V(0, 0, 1), 1.312806), False)  # 16
sketch8.addGeometry(Part.Circle(V(46.085301, 41, 0), V(0, 0, 1), 1.312806), False)  # 17
sketch8.addGeometry(Part.Circle(V(46.085301, -24, 0), V(0, 0, 1), 1.312806), False)  # 18
sketch8.addConstraint([
    Sketcher.Constraint("Coincident", 0, 1, 1, 1),
    Sketcher.Constraint("Coincident", 1, 2, 2, 2),
    Sketcher.Constraint("Coincident", 2, 1, 3, 1),
    Sketcher.Constraint("Coincident", 3, 2, 4, 1),
    Sketcher.Constraint("Coincident", 4, 2, 5, 1),
    Sketcher.Constraint("Coincident", 5, 2, 6, 2),
    Sketcher.Constraint("Coincident", 6, 1, 7, 1),
    Sketcher.Constraint("Coincident", 7, 2, 8, 2),
    Sketcher.Constraint("Coincident", 8, 1, 9, 1),
    Sketcher.Constraint("Coincident", 9, 2, 0, 2),
    Sketcher.Constraint("Vertical", 1),
    Sketcher.Constraint("Vertical", 3),
    Sketcher.Constraint("Horizontal", 4),
    Sketcher.Constraint("Vertical", 5),
    Sketcher.Constraint("Vertical", 7),
    Sketcher.Constraint("Horizontal", 9),
    Sketcher.Constraint("Horizontal", 11),
    Sketcher.Constraint("Vertical", 12),
    Sketcher.Constraint("Horizontal", 13),
    Sketcher.Constraint("Vertical", 14),
    Sketcher.Constraint("Coincident", 15, 3, 0, 3),
    Sketcher.Constraint("Coincident", 16, 3, 2, 3),
    Sketcher.Constraint("Coincident", 17, 3, 8, 3),
    Sketcher.Constraint("Coincident", 18, 3, 6, 3),
    Sketcher.Constraint("Equal", 2, 6),
    Sketcher.Constraint("Equal", 16, 17),
    Sketcher.Constraint("Equal", 17, 18),
    Sketcher.Constraint("Horizontal", 2, 3, 6, 3),
    Sketcher.Constraint("Horizontal", 0, 3, 8, 3),
    Sketcher.Constraint("Horizontal", 2, 1, 5, 2),
    Sketcher.Constraint("Horizontal", 1, 2, 6, 1),
    Sketcher.Constraint("Vertical", 0, 3, 2, 3),
    Sketcher.Constraint("Vertical", 6, 3, 8, 3),
    Sketcher.Constraint("Vertical", 1, 2, 2, 1),
    Sketcher.Constraint("Diameter", 10, 7.5),
    Sketcher.Constraint("Diameter", 15, 2.8),
    Sketcher.Constraint("DistanceX", 4, 1, 4, 2, 93.4),
    Sketcher.Constraint("DistanceX", 11, 2, 11, 1, 78.4),
    Sketcher.Constraint("DistanceY", 12, 1, 12, 2, 51.4),
    Sketcher.Constraint("DistanceY", -1, 1, 0, 3, 41.0),
    Sketcher.Constraint("DistanceY", 2, 3, -1, 1, 24.0),
    Sketcher.Constraint("DistanceX", 2, 3, 6, 3, 88.0),
    Sketcher.Constraint("DistanceX", 2, 3, 11, 2, 5.0),
    Sketcher.Constraint("DistanceY", 3, 2, -1, 1, 43.7),
    Sketcher.Constraint("DistanceY", -1, 1, 8, 1, 43.7),
    Sketcher.Constraint("DistanceY", 11, 2, -1, 1, 17.2),
    Sketcher.Constraint("Diameter", 16, 2.625611),
    Sketcher.Constraint("DistanceY", 10, 3, -1, 1, 34.95),
    Sketcher.Constraint("Radius", 2, 3.06866),
    Sketcher.Constraint("DistanceX", 10, 3, 6, 3, 7.55),
    Sketcher.Constraint("Radius", 0, 2.831843),
    Sketcher.Constraint("Radius", 8, 2.808637),
    Sketcher.Constraint("DistanceX", 0, 3, -1, 1, 41.914699),
])
sketch8.setExpression("Constraints[38]", "Params.sketch8_diameter")
sketch8.setExpression("Constraints[39]", "Params.sketch8_diameter2")
sketch8.setExpression("Constraints[40]", "Params.sketch8_width")
sketch8.setExpression("Constraints[41]", "Params.sketch8_width2")
sketch8.setExpression("Constraints[42]", "Params.sketch8_height")
pad6 = body2.newObject("PartDesign::Pad", "Pad005")
pad6.Profile = sketch8
pad6.setExpression("Length", "Params.pad6_length")
pad6.Reversed = True
doc.recompute()

fillet2 = body2.newObject("PartDesign::Fillet", "Fillet001")
fillet2.Base = (pad6, edges_at(pad6, [
    (-46.615, -45.7, 15.2),
    (50.785, -45.7, 15.2),
    (50.785, 45.7, 15.2),
    (-46.615, 45.7, 15.2),
]))
fillet2.setExpression("Radius", "Params.fillet2_radius")

doc.recompute()
